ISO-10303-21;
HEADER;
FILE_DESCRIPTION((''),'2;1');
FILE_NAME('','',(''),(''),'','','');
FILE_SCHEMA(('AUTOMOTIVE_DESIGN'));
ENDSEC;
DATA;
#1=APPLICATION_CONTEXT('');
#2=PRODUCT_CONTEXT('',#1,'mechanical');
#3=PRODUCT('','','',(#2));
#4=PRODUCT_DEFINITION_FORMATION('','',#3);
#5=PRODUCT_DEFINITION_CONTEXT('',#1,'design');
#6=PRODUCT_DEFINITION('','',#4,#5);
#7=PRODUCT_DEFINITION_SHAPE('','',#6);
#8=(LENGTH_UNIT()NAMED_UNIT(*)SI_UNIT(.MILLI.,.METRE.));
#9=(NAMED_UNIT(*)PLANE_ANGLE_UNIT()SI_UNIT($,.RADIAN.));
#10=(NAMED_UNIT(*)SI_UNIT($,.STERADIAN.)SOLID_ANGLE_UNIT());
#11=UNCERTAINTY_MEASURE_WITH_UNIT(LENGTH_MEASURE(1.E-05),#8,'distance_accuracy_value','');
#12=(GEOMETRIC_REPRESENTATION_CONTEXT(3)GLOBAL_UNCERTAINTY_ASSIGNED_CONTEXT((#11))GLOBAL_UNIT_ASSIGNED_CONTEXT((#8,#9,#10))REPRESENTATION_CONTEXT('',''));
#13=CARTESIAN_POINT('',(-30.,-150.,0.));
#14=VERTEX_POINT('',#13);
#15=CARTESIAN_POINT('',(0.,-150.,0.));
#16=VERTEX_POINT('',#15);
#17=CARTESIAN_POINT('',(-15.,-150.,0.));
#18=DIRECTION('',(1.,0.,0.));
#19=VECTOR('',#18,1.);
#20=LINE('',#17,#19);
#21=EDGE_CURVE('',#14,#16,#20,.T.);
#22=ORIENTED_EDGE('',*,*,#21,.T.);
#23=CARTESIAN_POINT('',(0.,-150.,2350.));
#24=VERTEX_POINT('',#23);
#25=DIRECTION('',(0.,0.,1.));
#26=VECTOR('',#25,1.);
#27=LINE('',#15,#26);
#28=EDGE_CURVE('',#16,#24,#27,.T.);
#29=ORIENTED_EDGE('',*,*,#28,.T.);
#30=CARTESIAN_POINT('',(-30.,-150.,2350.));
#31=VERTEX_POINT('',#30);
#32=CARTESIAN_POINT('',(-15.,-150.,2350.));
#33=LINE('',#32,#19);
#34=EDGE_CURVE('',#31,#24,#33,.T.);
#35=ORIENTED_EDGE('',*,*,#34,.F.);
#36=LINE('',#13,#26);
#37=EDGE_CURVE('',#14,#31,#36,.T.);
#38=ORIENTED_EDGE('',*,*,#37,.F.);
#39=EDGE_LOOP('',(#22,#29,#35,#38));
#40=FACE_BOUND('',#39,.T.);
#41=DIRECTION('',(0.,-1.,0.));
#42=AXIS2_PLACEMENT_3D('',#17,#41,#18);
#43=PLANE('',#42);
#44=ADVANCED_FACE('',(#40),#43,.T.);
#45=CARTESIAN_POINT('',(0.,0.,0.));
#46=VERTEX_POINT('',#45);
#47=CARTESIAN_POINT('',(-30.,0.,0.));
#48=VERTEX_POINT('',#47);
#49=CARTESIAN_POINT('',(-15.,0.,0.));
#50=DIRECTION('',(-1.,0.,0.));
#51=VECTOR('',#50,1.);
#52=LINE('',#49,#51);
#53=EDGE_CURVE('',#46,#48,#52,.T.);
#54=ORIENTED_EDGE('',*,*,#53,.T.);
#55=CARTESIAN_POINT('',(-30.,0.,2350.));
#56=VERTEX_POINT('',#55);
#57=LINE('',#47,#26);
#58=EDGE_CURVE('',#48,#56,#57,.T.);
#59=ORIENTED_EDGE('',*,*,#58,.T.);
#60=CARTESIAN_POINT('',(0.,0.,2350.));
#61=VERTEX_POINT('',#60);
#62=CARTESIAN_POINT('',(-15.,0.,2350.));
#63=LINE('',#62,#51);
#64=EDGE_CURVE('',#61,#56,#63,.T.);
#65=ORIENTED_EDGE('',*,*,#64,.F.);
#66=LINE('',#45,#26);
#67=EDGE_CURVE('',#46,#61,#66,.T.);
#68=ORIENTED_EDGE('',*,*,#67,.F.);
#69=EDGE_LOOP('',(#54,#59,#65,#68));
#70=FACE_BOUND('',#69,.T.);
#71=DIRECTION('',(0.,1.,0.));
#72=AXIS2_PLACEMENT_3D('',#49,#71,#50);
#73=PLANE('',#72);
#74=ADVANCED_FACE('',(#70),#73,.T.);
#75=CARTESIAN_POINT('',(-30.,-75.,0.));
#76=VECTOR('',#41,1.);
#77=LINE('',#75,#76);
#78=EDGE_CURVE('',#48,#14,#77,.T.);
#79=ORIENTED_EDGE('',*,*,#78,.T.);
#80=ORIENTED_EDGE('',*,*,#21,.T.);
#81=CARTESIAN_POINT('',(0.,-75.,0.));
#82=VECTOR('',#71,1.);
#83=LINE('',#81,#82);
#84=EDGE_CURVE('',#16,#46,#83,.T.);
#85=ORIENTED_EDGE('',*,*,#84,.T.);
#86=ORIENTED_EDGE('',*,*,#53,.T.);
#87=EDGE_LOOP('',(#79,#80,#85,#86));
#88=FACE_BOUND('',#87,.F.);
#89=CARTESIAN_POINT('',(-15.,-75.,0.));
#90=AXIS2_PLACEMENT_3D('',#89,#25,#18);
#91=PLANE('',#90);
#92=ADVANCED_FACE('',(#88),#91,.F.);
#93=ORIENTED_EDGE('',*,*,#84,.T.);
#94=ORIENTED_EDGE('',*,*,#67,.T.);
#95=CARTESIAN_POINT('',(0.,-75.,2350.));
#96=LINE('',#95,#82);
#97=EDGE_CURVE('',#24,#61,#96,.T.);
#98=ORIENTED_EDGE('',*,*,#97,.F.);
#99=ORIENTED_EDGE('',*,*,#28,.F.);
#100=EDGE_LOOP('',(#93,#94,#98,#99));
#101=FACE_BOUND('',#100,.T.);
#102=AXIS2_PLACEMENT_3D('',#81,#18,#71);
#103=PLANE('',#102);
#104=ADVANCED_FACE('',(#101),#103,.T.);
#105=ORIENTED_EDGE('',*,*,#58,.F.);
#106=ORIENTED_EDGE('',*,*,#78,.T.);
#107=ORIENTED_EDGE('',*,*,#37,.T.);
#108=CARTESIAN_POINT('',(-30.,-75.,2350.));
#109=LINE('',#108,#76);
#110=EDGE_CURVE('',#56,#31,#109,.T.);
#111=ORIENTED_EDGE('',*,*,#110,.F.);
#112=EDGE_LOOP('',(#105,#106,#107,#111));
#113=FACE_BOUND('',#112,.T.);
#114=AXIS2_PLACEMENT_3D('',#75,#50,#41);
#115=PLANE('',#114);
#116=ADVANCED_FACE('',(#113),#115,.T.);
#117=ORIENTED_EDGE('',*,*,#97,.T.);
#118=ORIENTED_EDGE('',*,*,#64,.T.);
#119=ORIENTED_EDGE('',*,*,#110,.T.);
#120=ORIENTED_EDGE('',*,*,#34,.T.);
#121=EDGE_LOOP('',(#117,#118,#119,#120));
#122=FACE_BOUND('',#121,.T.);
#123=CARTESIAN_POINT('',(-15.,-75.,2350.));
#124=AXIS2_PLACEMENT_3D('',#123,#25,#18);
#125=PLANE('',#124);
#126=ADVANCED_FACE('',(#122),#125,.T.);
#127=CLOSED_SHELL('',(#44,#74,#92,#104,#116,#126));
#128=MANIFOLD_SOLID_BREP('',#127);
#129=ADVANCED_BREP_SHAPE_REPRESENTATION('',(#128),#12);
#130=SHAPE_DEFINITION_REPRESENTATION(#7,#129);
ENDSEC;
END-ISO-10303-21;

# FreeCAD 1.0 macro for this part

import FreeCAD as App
import Part
import Sketcher
from FreeCAD import Vector


def add_polygon(sketch, points):
    """Adds a closed chain of lines whose ends are joined by coincident constraints."""
    first, n = sketch.GeometryCount, len(points)
    for a, b in zip(points, points[1:] + points[:1]):
        sketch.addGeometry(Part.LineSegment(App.Vector(*a, 0), App.Vector(*b, 0)), False)
    for i in range(n):
        sketch.addConstraint(Sketcher.Constraint("Coincident", first + i, 2, first + (i + 1) % n, 1))

doc = App.newDocument("Part")
body = doc.addObject("PartDesign::Body", "Body")

# Sketch on XY plane
sketch1 = body.newObject("Sketcher::SketchObject", "Sketch")
sketch1.AttachmentSupport = (doc.getObject("XY_Plane"), [""])
sketch1.MapMode = "FlatFace"
add_polygon(sketch1, [(-30, 0), (-30, -150), (0, -150), (0, 0)])  # lines 0-3
sketch1.addConstraint([
    Sketcher.Constraint("Vertical", 0),
    Sketcher.Constraint("Horizontal", 1),
    Sketcher.Constraint("Vertical", 2),
    Sketcher.Constraint("Horizontal", 3),
    Sketcher.Constraint("Coincident", 2, 2, -1, 1),
    Sketcher.Constraint("DistanceX", 1, 1, 1, 2, 30.0),
    Sketcher.Constraint("DistanceY", 0, 2, 0, 1, 150.0),
])

# Sketch on XZ plane
sketch2 = body.newObject("Sketcher::SketchObject", "Sketch001")
sketch2.AttachmentSupport = (doc.getObject("XZ_Plane"), [""])
sketch2.MapMode = "FlatFace"
sketch2.addGeometry(Part.LineSegment(Vector(0, 0, 0), Vector(0, 2350, 0)), False)
sketch2.addConstraint([
    Sketcher.Constraint("Vertical", 0),
    Sketcher.Constraint("Coincident", 0, 1, -1, 1),
    Sketcher.Constraint("DistanceY", 0, 1, 0, 2, 2350.0),
])
doc.recompute()

additivepipe = body.newObject("PartDesign::AdditivePipe", "AdditivePipe")
additivepipe.Profile = sketch1
additivepipe.Spine = (sketch2, ["Edge1"])

doc.recompute()
